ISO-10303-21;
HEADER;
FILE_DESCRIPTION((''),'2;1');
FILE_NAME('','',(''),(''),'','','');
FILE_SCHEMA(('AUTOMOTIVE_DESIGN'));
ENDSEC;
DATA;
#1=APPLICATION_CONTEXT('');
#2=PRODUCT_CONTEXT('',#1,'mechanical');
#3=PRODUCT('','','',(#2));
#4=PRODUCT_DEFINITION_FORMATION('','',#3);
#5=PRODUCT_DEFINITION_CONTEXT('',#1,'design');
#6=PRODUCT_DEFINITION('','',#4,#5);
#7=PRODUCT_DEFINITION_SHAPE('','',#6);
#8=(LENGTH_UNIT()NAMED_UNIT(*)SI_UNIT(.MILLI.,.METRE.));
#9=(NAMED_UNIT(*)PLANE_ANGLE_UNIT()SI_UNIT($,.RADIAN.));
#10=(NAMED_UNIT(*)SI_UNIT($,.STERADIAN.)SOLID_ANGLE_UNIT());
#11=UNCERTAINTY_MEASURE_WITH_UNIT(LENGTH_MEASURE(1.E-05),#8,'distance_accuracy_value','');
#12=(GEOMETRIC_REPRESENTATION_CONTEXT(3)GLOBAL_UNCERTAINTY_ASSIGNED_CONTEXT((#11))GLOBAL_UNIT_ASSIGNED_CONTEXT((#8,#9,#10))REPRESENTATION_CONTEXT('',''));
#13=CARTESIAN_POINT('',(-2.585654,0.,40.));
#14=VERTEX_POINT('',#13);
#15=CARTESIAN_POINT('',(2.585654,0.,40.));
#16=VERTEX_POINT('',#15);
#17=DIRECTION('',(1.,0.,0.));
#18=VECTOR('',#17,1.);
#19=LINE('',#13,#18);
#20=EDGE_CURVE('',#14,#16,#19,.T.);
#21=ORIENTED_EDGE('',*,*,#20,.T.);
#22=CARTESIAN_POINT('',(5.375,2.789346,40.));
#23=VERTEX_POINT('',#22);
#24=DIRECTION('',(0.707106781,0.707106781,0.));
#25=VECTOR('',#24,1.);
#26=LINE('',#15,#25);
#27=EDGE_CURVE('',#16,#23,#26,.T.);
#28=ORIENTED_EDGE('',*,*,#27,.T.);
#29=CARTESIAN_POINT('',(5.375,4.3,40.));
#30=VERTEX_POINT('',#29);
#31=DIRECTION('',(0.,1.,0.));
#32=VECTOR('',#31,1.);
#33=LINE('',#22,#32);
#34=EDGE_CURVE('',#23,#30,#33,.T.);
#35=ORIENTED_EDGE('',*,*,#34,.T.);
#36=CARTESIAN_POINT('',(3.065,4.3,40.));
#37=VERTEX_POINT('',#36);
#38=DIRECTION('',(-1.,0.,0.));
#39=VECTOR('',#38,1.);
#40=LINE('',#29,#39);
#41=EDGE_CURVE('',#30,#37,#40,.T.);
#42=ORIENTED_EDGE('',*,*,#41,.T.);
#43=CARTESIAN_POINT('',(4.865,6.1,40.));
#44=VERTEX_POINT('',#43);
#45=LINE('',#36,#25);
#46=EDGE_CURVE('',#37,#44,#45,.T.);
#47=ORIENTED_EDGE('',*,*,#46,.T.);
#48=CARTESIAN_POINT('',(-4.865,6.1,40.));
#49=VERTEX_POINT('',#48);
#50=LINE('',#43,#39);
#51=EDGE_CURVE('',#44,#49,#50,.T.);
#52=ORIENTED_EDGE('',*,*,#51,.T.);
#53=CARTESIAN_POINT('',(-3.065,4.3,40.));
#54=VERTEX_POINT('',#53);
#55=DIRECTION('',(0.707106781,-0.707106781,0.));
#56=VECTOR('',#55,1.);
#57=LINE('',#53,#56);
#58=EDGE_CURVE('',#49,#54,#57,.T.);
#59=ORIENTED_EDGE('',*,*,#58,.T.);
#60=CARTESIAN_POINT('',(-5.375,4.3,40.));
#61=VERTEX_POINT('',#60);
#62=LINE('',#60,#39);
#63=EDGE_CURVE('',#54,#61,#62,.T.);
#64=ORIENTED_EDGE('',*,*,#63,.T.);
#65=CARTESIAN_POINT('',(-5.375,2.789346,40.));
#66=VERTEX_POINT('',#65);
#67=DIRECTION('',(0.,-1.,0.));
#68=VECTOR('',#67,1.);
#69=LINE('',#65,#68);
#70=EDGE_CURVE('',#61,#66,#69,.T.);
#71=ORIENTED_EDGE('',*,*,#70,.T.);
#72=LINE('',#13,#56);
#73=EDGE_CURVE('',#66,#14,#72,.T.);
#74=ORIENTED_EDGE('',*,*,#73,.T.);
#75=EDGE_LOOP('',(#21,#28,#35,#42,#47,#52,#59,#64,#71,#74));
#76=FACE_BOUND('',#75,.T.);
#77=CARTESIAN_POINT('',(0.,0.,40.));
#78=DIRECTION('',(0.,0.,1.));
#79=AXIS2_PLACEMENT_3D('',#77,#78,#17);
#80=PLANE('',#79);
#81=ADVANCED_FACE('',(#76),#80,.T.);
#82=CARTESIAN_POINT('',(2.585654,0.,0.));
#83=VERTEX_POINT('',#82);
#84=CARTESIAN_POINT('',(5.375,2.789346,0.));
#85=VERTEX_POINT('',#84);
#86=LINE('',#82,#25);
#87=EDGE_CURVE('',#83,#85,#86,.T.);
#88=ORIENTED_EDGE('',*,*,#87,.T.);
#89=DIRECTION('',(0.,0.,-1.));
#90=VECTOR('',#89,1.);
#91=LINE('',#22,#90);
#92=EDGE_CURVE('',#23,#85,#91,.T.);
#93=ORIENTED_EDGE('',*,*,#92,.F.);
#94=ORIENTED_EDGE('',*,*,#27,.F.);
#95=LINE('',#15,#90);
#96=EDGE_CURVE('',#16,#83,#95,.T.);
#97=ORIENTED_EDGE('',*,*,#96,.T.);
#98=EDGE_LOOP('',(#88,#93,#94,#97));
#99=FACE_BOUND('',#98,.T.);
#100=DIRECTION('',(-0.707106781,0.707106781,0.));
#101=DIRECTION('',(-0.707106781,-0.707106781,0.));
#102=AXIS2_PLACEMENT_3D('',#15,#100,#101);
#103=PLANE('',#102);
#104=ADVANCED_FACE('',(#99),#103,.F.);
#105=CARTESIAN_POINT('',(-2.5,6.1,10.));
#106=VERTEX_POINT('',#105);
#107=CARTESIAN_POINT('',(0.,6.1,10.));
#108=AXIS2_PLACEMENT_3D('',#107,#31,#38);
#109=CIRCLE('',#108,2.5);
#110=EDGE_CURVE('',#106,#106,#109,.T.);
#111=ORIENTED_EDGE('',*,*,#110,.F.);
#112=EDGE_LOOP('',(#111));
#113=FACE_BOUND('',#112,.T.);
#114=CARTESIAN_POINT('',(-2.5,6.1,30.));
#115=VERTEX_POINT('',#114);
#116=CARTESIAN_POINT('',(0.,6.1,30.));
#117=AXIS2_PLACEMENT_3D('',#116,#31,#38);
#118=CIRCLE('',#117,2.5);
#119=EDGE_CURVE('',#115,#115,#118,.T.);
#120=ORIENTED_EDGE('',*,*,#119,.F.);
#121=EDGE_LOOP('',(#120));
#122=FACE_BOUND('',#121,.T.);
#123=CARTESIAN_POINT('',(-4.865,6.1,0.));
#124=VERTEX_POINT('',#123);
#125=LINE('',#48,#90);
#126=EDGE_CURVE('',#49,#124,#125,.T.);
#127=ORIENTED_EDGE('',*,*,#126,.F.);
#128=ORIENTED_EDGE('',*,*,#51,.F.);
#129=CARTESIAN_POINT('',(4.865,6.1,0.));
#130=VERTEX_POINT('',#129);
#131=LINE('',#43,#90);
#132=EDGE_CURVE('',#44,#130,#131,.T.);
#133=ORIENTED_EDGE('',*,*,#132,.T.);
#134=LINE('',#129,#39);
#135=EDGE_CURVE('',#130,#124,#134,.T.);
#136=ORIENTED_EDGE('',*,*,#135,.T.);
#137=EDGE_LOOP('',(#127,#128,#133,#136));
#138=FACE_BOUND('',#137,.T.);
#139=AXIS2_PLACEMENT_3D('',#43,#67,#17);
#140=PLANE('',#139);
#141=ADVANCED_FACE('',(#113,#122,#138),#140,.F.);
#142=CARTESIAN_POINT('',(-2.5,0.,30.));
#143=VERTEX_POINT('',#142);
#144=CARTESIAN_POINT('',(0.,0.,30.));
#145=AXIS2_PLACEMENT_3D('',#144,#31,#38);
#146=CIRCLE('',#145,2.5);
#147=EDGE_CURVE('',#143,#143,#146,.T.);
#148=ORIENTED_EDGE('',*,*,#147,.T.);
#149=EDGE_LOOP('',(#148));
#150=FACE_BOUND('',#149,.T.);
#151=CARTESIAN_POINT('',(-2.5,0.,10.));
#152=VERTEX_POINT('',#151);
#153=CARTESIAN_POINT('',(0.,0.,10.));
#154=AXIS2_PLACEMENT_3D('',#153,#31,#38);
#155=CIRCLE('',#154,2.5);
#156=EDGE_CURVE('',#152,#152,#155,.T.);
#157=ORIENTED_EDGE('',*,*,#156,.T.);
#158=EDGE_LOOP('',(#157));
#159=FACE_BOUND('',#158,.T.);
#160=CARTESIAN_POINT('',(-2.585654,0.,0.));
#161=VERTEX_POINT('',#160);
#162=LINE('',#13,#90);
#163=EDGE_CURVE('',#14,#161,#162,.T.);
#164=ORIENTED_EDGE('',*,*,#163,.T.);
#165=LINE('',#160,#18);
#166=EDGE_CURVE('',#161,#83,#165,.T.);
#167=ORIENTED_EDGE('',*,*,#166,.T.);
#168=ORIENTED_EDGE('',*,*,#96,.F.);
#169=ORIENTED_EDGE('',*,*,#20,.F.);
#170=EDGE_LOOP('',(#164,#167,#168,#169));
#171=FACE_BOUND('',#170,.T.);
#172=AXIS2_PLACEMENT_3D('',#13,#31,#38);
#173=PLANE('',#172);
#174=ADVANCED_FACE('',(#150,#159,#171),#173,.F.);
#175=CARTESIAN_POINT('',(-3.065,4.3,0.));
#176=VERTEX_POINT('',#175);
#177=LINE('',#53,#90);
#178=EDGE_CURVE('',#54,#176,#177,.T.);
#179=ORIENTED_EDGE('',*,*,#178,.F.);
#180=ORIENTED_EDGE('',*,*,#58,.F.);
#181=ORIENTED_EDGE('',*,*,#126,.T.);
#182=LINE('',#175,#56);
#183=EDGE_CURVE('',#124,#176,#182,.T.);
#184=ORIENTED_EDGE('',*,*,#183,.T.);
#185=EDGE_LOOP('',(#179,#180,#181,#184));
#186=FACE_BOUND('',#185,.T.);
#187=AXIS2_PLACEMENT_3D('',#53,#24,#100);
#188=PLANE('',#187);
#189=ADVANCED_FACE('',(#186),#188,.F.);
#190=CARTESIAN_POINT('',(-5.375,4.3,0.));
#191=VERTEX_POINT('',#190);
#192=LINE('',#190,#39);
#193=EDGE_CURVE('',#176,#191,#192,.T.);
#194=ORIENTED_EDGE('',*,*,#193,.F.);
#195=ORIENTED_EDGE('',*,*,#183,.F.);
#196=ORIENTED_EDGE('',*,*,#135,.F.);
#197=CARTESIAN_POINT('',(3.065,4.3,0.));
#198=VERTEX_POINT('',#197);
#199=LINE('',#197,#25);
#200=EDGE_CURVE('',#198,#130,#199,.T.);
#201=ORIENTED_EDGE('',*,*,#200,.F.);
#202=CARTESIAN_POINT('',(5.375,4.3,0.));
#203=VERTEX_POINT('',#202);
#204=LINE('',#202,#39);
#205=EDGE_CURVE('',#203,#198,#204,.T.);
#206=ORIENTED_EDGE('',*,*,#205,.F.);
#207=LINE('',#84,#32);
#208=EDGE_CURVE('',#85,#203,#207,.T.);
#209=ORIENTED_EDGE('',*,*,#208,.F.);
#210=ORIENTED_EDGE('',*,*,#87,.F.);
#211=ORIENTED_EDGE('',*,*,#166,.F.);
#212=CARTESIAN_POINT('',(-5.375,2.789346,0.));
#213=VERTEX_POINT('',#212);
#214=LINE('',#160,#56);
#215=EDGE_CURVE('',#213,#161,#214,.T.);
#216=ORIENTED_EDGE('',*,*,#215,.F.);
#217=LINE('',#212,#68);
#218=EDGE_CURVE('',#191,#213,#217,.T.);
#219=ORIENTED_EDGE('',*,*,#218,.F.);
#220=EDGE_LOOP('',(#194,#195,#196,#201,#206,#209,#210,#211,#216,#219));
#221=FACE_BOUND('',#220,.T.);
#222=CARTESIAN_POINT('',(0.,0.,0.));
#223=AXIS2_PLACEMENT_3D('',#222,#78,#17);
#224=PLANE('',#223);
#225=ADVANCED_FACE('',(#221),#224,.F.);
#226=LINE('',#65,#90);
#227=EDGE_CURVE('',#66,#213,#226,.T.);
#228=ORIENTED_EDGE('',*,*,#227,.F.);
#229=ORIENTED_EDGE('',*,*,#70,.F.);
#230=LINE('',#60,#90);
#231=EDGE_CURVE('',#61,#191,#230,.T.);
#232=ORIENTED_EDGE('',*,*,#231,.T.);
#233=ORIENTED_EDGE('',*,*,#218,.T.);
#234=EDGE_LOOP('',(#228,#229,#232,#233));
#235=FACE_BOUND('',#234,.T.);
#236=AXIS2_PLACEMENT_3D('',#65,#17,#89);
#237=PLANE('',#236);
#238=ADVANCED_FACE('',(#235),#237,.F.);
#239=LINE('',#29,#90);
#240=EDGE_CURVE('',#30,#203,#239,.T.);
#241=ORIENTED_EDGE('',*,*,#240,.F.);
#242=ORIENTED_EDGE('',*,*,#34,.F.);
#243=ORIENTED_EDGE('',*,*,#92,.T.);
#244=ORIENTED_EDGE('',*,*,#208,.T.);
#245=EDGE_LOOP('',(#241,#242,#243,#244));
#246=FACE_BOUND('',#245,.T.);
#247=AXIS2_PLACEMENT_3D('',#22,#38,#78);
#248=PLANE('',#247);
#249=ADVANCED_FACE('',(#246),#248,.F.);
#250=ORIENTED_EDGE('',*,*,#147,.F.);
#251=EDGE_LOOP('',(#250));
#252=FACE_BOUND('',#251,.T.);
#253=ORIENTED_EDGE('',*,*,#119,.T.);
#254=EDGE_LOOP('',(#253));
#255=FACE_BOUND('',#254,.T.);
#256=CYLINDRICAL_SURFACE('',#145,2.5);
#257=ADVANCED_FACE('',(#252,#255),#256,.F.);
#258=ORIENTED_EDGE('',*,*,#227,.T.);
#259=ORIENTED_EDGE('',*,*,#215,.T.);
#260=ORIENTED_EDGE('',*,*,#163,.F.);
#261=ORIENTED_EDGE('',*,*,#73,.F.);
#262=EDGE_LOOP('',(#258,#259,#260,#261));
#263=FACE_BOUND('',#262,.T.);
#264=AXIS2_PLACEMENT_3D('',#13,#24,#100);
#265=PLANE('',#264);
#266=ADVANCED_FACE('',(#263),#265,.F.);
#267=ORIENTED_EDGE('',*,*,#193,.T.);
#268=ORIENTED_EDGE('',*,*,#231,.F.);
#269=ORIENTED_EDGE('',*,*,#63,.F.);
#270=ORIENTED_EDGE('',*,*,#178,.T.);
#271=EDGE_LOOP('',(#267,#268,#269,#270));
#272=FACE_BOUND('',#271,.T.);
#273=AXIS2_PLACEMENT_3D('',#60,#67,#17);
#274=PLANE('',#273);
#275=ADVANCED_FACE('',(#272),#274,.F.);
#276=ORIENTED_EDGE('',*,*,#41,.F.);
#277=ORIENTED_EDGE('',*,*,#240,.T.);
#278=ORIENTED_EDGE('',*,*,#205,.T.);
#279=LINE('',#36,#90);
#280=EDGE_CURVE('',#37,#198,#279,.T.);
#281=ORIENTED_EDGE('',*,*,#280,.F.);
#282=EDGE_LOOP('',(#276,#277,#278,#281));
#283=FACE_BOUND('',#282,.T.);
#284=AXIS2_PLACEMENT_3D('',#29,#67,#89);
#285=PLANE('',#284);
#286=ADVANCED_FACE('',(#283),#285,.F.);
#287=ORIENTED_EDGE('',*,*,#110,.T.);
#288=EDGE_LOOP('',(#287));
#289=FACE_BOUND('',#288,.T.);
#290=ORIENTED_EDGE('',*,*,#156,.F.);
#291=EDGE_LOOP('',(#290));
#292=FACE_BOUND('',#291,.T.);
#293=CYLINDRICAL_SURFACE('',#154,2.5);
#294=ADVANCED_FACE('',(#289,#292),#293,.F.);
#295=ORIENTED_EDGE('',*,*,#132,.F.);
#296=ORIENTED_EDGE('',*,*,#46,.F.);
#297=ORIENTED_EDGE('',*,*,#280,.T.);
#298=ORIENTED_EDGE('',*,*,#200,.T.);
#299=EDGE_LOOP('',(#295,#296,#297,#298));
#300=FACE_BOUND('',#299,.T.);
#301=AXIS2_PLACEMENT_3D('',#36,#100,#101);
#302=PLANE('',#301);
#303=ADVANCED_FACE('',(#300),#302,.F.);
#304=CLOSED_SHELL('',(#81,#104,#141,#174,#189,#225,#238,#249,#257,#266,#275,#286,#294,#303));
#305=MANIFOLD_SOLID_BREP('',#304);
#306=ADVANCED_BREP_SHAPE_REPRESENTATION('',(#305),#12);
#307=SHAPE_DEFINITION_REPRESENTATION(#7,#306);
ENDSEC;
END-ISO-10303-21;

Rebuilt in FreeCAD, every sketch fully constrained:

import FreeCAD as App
import Part
import Sketcher

V = App.Vector
Q = App.Units.Quantity


def add_polygon(sketch, points):
    """Adds a closed chain of lines whose ends are joined by coincident constraints."""
    first, n = sketch.GeometryCount, len(points)
    for a, b in zip(points, points[1:] + points[:1]):
        sketch.addGeometry(Part.LineSegment(App.Vector(*a, 0), App.Vector(*b, 0)), False)
    for i in range(n):
        sketch.addConstraint(Sketcher.Constraint("Coincident", first + i, 2, first + (i + 1) % n, 1))

doc = App.newDocument("Part")
body = doc.addObject("PartDesign::Body", "Body")

sketch1 = body.newObject("Sketcher::SketchObject", "Sketch")
sketch1.AttachmentSupport = (doc.getObject("XY_Plane"), [""])
sketch1.MapMode = "FlatFace"
add_polygon(sketch1, [(-2.585654, 0), (2.585654, 0), (5.375, 2.789346), (5.375, 4.3), (3.065, 4.3), (4.865, 6.1), (-4.865, 6.1), (-3.065, 4.3), (-5.375, 4.3), (-5.375, 2.789346)])
sketch1.addConstraint([
    Sketcher.Constraint("Horizontal", 0),
    Sketcher.Constraint("Vertical", 2),
    Sketcher.Constraint("Horizontal", 3),
    Sketcher.Constraint("Horizontal", 5),
    Sketcher.Constraint("Horizontal", 7),
    Sketcher.Constraint("Vertical", 8),
    Sketcher.Constraint("Symmetric", 0, 2, 9, 2, -1, 1),
    Sketcher.Constraint("Symmetric", 3, 2, 6, 2, -2),
    Sketcher.Constraint("Symmetric", 1, 2, 8, 2, -2),
    Sketcher.Constraint("Parallel", 1, 4),
    Sketcher.Constraint("Perpendicular", 4, 6),
    Sketcher.Constraint("Parallel", 6, 9),
    Sketcher.Constraint("DistanceX", 3, 2, 3, 1, Q("2.31 mm")),
    Sketcher.Constraint("DistanceX", 5, 2, 5, 1, Q("9.73 mm")),
    Sketcher.Constraint("DistanceY", -1, 1, 2, 2, Q("4.3 mm")),
    Sketcher.Constraint("DistanceY", -1, 1, 4, 2, Q("6.1 mm")),
    Sketcher.Constraint("Distance", 1, Q("3.944732 mm")),
])
pad1 = body.newObject("PartDesign::Pad", "Pad")
pad1.Profile = sketch1
pad1.Length = 40

sketch2 = body.newObject("Sketcher::SketchObject", "Sketch001")
sketch2.AttachmentSupport = (doc.getObject("XZ_Plane"), [""])
sketch2.MapMode = "FlatFace"
sketch2.AttachmentOffset = App.Placement(V(0, 0, -6.1), App.Rotation())
sketch2.addGeometry([
    Part.Circle(V(0, 30, 0), V(0, 0, 1), 2.5),
    Part.Circle(V(0, 10, 0), V(0, 0, 1), 2.5),
], False)
sketch2.addConstraint([
    Sketcher.Constraint("Equal", 0, 1),
    Sketcher.Constraint("PointOnObject", 0, 3, -2),
    Sketcher.Constraint("PointOnObject", 1, 3, -2),
    Sketcher.Constraint("Diameter", 0, Q("5 mm")),
    Sketcher.Constraint("DistanceY", -1, 1, 0, 3, Q("30 mm")),
    Sketcher.Constraint("DistanceY", -1, 1, 1, 3, Q("10 mm")),
])
pocket1 = body.newObject("PartDesign::Pocket", "Pocket")
pocket1.Profile = sketch2
pocket1.Type = "ThroughAll"
pocket1.Reversed = True

doc.recompute()
